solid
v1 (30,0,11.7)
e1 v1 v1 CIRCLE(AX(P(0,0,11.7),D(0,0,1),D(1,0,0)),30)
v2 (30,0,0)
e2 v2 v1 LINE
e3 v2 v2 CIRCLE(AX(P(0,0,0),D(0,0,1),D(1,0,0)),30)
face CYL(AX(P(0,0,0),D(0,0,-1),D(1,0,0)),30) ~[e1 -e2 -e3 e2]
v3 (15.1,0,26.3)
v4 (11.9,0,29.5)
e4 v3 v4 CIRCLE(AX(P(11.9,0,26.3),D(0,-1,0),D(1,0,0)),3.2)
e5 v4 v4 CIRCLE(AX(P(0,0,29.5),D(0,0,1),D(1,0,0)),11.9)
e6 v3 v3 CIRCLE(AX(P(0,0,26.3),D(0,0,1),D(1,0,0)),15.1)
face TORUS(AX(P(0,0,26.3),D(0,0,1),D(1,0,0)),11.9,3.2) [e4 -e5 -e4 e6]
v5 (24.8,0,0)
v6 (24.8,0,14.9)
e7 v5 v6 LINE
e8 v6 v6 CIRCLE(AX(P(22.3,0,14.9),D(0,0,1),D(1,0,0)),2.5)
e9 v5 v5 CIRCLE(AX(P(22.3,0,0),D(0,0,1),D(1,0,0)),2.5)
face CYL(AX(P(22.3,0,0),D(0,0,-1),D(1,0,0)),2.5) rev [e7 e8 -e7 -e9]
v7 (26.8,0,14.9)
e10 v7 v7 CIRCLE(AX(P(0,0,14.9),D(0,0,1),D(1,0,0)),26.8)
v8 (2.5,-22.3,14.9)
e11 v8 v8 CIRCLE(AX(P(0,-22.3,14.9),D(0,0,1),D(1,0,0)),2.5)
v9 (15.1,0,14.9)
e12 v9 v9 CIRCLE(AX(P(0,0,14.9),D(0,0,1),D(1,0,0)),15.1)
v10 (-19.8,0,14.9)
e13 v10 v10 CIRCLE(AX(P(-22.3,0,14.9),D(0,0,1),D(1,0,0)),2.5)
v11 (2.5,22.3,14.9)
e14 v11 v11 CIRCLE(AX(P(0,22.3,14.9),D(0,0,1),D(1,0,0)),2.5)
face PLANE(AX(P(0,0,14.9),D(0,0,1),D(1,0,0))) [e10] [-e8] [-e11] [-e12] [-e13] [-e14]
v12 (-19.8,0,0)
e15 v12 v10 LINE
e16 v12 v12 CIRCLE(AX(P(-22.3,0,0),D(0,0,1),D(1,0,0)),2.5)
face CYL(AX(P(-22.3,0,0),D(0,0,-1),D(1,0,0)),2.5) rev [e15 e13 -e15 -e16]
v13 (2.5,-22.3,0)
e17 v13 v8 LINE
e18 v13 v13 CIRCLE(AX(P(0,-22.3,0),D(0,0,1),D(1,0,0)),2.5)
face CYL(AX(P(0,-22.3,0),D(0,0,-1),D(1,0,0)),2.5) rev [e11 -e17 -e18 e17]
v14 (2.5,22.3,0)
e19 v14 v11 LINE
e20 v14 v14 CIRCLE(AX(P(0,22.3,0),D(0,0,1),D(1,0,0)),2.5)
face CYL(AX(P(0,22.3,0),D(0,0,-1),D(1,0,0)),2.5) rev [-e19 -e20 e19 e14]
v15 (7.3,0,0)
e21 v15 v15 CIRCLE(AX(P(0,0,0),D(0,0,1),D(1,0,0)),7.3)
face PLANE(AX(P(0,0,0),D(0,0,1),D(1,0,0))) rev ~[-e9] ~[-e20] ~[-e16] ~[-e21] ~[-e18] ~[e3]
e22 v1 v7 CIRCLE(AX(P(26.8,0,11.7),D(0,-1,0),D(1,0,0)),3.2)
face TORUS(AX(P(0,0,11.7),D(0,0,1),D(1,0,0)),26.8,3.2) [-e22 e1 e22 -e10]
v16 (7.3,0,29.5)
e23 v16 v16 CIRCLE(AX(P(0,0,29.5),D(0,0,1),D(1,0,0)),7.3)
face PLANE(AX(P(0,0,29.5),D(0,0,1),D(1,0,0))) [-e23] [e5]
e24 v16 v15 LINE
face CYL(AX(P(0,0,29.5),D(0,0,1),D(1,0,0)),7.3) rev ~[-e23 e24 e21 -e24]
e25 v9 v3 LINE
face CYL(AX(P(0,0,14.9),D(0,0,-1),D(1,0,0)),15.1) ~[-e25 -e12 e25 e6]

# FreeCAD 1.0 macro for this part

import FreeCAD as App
import Part
import Sketcher
from FreeCAD import Vector
Q = App.Units.Quantity


def edges_at(feature, points):
    """Names of the edges that pass closest to the given points."""
    edges = feature.Shape.Edges
    near = lambda p: min(range(len(edges)), key=lambda i: edges[i].distToShape(Part.Vertex(*p))[0])
    return sorted({f"Edge{near(p) + 1}" for p in points})

doc = App.newDocument("Part")
body = doc.addObject("PartDesign::Body", "Body")

# Sketch on XY plane
sketch1 = body.newObject("Sketcher::SketchObject", "Sketch")
sketch1.AttachmentSupport = (doc.getObject("XY_Plane"), [""])
sketch1.MapMode = "FlatFace"
sketch1.addGeometry(Part.Circle(Vector(0, 0, 0), Vector(0, 0, 1), 30), False)
sketch1.addGeometry(Part.Circle(Vector(0, -22.3, 0), Vector(0, 0, 1), 2.5), False)
sketch1.addGeometry(Part.Circle(Vector(-22.3, 0, 0), Vector(0, 0, 1), 2.5), False)
sketch1.addGeometry(Part.Circle(Vector(22.3, 0, 0), Vector(0, 0, 1), 2.5), False)
sketch1.addGeometry(Part.Circle(Vector(0, 22.3, 0), Vector(0, 0, 1), 2.5), False)
sketch1.addConstraint(Sketcher.Constraint("Coincident", 0, 3, -1, 1))
sketch1.addConstraint(Sketcher.Constraint("Equal", 1, 2))
sketch1.addConstraint(Sketcher.Constraint("Equal", 2, 3))
sketch1.addConstraint(Sketcher.Constraint("Equal", 3, 4))
sketch1.addConstraint(Sketcher.Constraint("Symmetric", 2, 3, 3, 3, -1, 1))
sketch1.addConstraint(Sketcher.Constraint("Symmetric", 1, 3, 4, 3, -1, 1))
sketch1.addConstraint(Sketcher.Constraint("PointOnObject", 1, 3, -2))
sketch1.addConstraint(Sketcher.Constraint("PointOnObject", 2, 3, -1))
sketch1.addConstraint(Sketcher.Constraint("Diameter", 0, Q("60 mm")))
sketch1.addConstraint(Sketcher.Constraint("Diameter", 1, Q("5 mm")))
sketch1.addConstraint(Sketcher.Constraint("DistanceY", 1, 3, -1, 1, Q("22.3 mm")))
sketch1.addConstraint(Sketcher.Constraint("DistanceX", 2, 3, -1, 1, Q("22.3 mm")))
pad1 = body.newObject("PartDesign::Pad", "Pad")
pad1.Profile = sketch1
pad1.Length = 14.9
doc.recompute()

fillet = body.newObject("PartDesign::Fillet", "Fillet")
fillet.Base = (pad1, edges_at(pad1, [(-30, 0, 14.9)]))
fillet.Radius = 3.2

# Sketch on XY plane
sketch2 = body.newObject("Sketcher::SketchObject", "Sketch001")
sketch2.AttachmentSupport = (doc.getObject("XY_Plane"), [""])
sketch2.MapMode = "FlatFace"
sketch2.AttachmentOffset = App.Placement(Vector(0, 0, 14.9), App.Rotation())
sketch2.addGeometry(Part.Circle(Vector(0, 0, 0), Vector(0, 0, 1), 15), False)
sketch2.addConstraint(Sketcher.Constraint("Coincident", 0, 3, -1, 1))
sketch2.addConstraint(Sketcher.Constraint("Diameter", 0, Q("30.2 mm")))
pad2 = body.newObject("PartDesign::Pad", "Pad001")
pad2.Profile = sketch2
pad2.Length = 14.6
doc.recompute()

fillet2 = body.newObject("PartDesign::Fillet", "Fillet001")
fillet2.Base = (pad2, edges_at(pad2, [(-15.1, 0, 29.5)]))
fillet2.Radius = 3.2

# Sketch on XY plane
sketch3 = body.newObject("Sketcher::SketchObject", "Sketch002")
sketch3.AttachmentSupport = (doc.getObject("XY_Plane"), [""])
sketch3.MapMode = "FlatFace"
sketch3.AttachmentOffset = App.Placement(Vector(0, 0, 29.5), App.Rotation())
sketch3.addGeometry(Part.Circle(Vector(0, 0, 0), Vector(0, 0, 1), 7), False)
sketch3.addConstraint(Sketcher.Constraint("Coincident", 0, 3, -1, 1))
sketch3.addConstraint(Sketcher.Constraint("Diameter", 0, Q("14.6 mm")))
pocket1 = body.newObject("PartDesign::Pocket", "Pocket")
pocket1.Profile = sketch3
pocket1.Length = 60

doc.recompute()
